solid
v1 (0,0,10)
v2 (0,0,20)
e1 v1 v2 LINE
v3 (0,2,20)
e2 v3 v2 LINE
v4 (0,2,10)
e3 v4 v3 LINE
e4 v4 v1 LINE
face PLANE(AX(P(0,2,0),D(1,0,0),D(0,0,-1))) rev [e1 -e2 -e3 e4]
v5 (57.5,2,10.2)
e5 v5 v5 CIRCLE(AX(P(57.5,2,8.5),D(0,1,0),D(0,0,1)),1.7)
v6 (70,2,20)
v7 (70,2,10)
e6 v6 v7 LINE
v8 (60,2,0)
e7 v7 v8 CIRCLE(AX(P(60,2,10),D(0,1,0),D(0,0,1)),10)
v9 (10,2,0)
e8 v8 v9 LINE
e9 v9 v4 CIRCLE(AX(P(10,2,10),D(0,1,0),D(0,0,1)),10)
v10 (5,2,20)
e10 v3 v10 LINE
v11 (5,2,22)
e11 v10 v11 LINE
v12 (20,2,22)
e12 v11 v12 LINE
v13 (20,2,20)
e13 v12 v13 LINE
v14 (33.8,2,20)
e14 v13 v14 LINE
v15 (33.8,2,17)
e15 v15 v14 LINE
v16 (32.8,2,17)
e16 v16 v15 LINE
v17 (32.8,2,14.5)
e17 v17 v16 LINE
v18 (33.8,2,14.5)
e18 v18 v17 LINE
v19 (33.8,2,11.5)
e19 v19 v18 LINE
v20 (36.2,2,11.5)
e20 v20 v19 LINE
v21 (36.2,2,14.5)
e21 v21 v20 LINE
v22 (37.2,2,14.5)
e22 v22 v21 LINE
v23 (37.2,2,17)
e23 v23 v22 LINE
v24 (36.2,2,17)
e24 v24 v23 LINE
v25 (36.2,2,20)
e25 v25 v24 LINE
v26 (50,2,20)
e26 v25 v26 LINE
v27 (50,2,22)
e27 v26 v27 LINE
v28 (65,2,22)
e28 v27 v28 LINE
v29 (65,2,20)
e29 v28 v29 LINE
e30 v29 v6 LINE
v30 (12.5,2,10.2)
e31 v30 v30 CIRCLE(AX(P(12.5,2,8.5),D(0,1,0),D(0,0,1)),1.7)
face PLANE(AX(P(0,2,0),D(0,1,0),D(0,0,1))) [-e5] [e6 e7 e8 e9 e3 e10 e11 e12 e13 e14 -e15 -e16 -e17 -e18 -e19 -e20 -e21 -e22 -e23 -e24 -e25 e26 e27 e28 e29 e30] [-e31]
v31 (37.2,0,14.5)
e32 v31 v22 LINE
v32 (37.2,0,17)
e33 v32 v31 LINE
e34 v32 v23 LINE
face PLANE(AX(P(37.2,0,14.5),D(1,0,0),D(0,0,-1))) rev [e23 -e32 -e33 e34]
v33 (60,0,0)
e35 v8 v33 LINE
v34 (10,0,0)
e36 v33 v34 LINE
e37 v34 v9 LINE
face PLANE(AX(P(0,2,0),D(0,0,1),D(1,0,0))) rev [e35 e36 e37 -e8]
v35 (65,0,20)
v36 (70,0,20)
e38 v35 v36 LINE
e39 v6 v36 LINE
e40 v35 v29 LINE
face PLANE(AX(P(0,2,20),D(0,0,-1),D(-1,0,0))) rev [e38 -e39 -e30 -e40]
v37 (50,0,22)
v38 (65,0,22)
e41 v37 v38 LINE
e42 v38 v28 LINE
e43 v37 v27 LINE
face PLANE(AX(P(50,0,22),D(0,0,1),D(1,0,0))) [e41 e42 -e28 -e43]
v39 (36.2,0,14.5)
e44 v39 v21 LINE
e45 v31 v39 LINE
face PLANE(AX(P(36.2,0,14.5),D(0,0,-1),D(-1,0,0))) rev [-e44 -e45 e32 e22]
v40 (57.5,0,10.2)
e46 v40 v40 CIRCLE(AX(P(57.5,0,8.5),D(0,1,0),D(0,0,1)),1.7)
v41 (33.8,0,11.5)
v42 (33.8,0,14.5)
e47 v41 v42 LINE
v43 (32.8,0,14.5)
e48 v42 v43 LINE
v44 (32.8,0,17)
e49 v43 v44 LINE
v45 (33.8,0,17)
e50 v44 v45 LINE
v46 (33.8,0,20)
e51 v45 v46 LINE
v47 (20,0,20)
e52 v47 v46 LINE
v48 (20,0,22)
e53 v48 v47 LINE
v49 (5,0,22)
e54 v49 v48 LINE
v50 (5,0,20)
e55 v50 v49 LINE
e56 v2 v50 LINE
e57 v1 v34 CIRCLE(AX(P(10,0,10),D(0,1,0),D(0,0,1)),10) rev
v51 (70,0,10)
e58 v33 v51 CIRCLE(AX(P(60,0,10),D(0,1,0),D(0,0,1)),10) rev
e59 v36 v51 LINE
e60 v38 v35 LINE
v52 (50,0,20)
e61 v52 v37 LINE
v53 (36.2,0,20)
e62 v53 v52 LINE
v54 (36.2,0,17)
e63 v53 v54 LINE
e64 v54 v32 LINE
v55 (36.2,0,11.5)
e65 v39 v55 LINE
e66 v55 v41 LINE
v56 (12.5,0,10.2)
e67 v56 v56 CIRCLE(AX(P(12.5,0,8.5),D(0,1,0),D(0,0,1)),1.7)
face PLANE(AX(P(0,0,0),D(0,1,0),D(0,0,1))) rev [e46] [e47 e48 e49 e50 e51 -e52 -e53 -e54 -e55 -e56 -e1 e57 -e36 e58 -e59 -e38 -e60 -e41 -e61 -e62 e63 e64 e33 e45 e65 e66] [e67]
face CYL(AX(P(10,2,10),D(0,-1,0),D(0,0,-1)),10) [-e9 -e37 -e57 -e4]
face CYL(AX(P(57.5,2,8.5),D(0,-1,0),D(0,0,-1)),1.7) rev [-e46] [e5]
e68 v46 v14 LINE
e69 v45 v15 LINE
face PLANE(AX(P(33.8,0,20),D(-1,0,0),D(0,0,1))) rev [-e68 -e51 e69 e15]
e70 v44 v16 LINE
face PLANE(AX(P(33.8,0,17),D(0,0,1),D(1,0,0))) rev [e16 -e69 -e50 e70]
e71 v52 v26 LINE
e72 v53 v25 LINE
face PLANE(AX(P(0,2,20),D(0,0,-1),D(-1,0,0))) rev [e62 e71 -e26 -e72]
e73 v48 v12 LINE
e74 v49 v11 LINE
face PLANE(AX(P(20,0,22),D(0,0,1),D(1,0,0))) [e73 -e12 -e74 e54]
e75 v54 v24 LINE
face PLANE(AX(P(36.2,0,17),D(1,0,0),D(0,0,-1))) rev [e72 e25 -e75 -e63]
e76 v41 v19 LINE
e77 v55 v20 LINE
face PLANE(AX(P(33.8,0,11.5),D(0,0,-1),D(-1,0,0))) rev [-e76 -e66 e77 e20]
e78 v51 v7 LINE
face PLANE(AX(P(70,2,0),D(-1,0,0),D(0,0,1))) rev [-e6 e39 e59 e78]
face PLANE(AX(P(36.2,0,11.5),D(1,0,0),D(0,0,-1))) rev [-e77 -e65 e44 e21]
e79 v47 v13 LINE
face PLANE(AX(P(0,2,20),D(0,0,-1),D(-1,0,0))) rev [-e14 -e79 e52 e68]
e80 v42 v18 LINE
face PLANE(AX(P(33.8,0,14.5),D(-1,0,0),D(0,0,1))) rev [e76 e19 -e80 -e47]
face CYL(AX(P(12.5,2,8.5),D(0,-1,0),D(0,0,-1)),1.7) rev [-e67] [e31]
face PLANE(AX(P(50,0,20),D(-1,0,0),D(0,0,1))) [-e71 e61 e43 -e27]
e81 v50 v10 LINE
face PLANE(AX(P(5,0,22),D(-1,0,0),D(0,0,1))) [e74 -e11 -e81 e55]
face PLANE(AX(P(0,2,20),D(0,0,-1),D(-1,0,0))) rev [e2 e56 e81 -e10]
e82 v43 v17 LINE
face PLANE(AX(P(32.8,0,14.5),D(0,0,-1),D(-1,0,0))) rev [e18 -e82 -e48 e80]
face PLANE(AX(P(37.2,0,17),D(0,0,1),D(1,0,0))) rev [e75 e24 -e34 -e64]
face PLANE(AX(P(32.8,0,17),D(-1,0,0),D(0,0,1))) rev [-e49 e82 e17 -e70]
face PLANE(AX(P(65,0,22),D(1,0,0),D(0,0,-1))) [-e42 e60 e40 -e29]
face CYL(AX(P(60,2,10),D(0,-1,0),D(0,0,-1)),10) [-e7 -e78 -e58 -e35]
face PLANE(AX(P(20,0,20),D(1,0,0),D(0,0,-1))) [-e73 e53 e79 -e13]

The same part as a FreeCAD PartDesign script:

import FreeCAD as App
import Part
import Sketcher

V = App.Vector


def edges_at(feature, points):
    """Names of the edges that pass closest to the given points."""
    edges = feature.Shape.Edges
    near = lambda p: min(range(len(edges)), key=lambda i: edges[i].distToShape(Part.Vertex(*p))[0])
    return sorted({f"Edge{near(p) + 1}" for p in points})

doc = App.newDocument("Part")
body = doc.addObject("PartDesign::Body", "Body")

sketch1 = body.newObject("Sketcher::SketchObject", "Sketch")
sketch1.AttachmentSupport = (doc.getObject("XZ_Plane"), [""])
sketch1.MapMode = "FlatFace"
sketch1.addGeometry([
    Part.LineSegment(V(0, 0, 0), V(0, 20, 0)),
    Part.LineSegment(V(0, 20, 0), V(70, 20, 0)),
    Part.LineSegment(V(70, 20, 0), V(70, 0, 0)),
    Part.LineSegment(V(70, 0, 0), V(0, 0, 0)),
    Part.Circle(V(12.5, 8.5, 0), V(0, 0, 1), 1.7),
    Part.Circle(V(57.5, 8.5, 0), V(0, 0, 1), 1.7),
], False)
sketch1.addConstraint([
    Sketcher.Constraint("Coincident", 0, 2, 1, 1),
    Sketcher.Constraint("Coincident", 1, 2, 2, 1),
    Sketcher.Constraint("Coincident", 2, 2, 3, 1),
    Sketcher.Constraint("Coincident", 3, 2, 0, 1),
    Sketcher.Constraint("Vertical", 0),
    Sketcher.Constraint("Horizontal", 1),
    Sketcher.Constraint("Vertical", 2),
    Sketcher.Constraint("Horizontal", 3),
    Sketcher.Constraint("Coincident", 3, 2, -1, 1),
    Sketcher.Constraint("Equal", 4, 5),
    Sketcher.Constraint("Horizontal", 4, 3, 5, 3),
    Sketcher.Constraint("Diameter", 4, 3.4),
    Sketcher.Constraint("DistanceX", 1, 1, 1, 2, 70.0),
    Sketcher.Constraint("DistanceY", 0, 1, 0, 2, 20.0),
    Sketcher.Constraint("DistanceX", 4, 3, 5, 3, 45.0),
    Sketcher.Constraint("DistanceX", -1, 1, 4, 3, 12.5),
    Sketcher.Constraint("DistanceY", -1, 1, 4, 3, 8.5),
])
pad1 = body.newObject("PartDesign::Pad", "Pad")
pad1.Profile = sketch1
pad1.Length = 2
pad1.Reversed = True

sketch2 = body.newObject("Sketcher::SketchObject", "Sketch001")
sketch2.AttachmentSupport = (doc.getObject("XZ_Plane"), [""])
sketch2.MapMode = "FlatFace"
sketch2.AttachmentOffset = App.Placement(V(0, 0, -2), App.Rotation())
sketch2.addGeometry([
    Part.LineSegment(V(33.8, 17, 0), V(33.8, 20, 0)),
    Part.LineSegment(V(33.8, 20, 0), V(36.2, 20, 0)),
    Part.LineSegment(V(36.2, 20, 0), V(36.2, 17, 0)),
    Part.LineSegment(V(36.2, 17, 0), V(37.2, 17, 0)),
    Part.LineSegment(V(37.2, 17, 0), V(37.2, 14.5, 0)),
    Part.LineSegment(V(37.2, 14.5, 0), V(36.2, 14.5, 0)),
    Part.LineSegment(V(36.2, 14.5, 0), V(36.2, 11.5, 0)),
    Part.LineSegment(V(36.2, 11.5, 0), V(33.8, 11.5, 0)),
    Part.LineSegment(V(33.8, 11.5, 0), V(33.8, 14.5, 0)),
    Part.LineSegment(V(33.8, 14.5, 0), V(32.8, 14.5, 0)),
    Part.LineSegment(V(32.8, 14.5, 0), V(32.8, 17, 0)),
    Part.LineSegment(V(32.8, 17, 0), V(33.8, 17, 0)),
], False)
sketch2.addConstraint([
    Sketcher.Constraint("Coincident", 0, 2, 1, 1),
    Sketcher.Constraint("Coincident", 1, 2, 2, 1),
    Sketcher.Constraint("Coincident", 2, 2, 3, 1),
    Sketcher.Constraint("Coincident", 3, 2, 4, 1),
    Sketcher.Constraint("Coincident", 4, 2, 5, 1),
    Sketcher.Constraint("Coincident", 5, 2, 6, 1),
    Sketcher.Constraint("Coincident", 6, 2, 7, 1),
    Sketcher.Constraint("Coincident", 7, 2, 8, 1),
    Sketcher.Constraint("Coincident", 8, 2, 9, 1),
    Sketcher.Constraint("Coincident", 9, 2, 10, 1),
    Sketcher.Constraint("Coincident", 10, 2, 11, 1),
    Sketcher.Constraint("Coincident", 11, 2, 0, 1),
    Sketcher.Constraint("Vertical", 0),
    Sketcher.Constraint("Horizontal", 1),
    Sketcher.Constraint("Vertical", 2),
    Sketcher.Constraint("Horizontal", 3),
    Sketcher.Constraint("Vertical", 4),
    Sketcher.Constraint("Horizontal", 5),
    Sketcher.Constraint("Vertical", 6),
    Sketcher.Constraint("Horizontal", 7),
    Sketcher.Constraint("Vertical", 8),
    Sketcher.Constraint("Horizontal", 9),
    Sketcher.Constraint("Vertical", 10),
    Sketcher.Constraint("Horizontal", 11),
    Sketcher.Constraint("Horizontal", 5, 2, 8, 2),
    Sketcher.Constraint("Horizontal", 3, 2, 10, 2),
    Sketcher.Constraint("Vertical", 2, 2, 5, 2),
    Sketcher.Constraint("Vertical", 0, 2, 7, 2),
    Sketcher.Constraint("Equal", 5, 9),
    Sketcher.Constraint("Equal", 2, 6),
    Sketcher.Constraint("DistanceX", 3, 1, 3, 2, 1.0),
    Sketcher.Constraint("DistanceY", 0, 1, 0, 2, 3.0),
    Sketcher.Constraint("DistanceX", 1, 1, 1, 2, 2.4),
    Sketcher.Constraint("DistanceY", 4, 2, 4, 1, 2.5),
    Sketcher.Constraint("DistanceY", -1, 1, 0, 2, 20.0),
    Sketcher.Constraint("DistanceX", -1, 1, 0, 2, 33.8),
])
pocket1 = body.newObject("PartDesign::Pocket", "Pocket")
pocket1.Profile = sketch2
pocket1.Length = 2
pocket1.Reversed = True

sketch3 = body.newObject("Sketcher::SketchObject", "Sketch002")
sketch3.AttachmentSupport = (doc.getObject("XZ_Plane"), [""])
sketch3.MapMode = "FlatFace"
sketch3.AttachmentOffset = App.Placement(V(0, 0, -2), App.Rotation())
sketch3.addGeometry([
    Part.LineSegment(V(5, 20, 0), V(5, 22, 0)),
    Part.LineSegment(V(5, 22, 0), V(20, 22, 0)),
    Part.LineSegment(V(20, 22, 0), V(20, 20, 0)),
    Part.LineSegment(V(20, 20, 0), V(5, 20, 0)),
    Part.LineSegment(V(50, 20, 0), V(50, 22, 0)),
    Part.LineSegment(V(50, 22, 0), V(65, 22, 0)),
    Part.LineSegment(V(65, 22, 0), V(65, 20, 0)),
    Part.LineSegment(V(65, 20, 0), V(50, 20, 0)),
], False)
sketch3.addConstraint([
    Sketcher.Constraint("Coincident", 0, 2, 1, 1),
    Sketcher.Constraint("Coincident", 1, 2, 2, 1),
    Sketcher.Constraint("Coincident", 2, 2, 3, 1),
    Sketcher.Constraint("Coincident", 3, 2, 0, 1),
    Sketcher.Constraint("Coincident", 4, 2, 5, 1),
    Sketcher.Constraint("Coincident", 5, 2, 6, 1),
    Sketcher.Constraint("Coincident", 6, 2, 7, 1),
    Sketcher.Constraint("Coincident", 7, 2, 4, 1),
    Sketcher.Constraint("Vertical", 0),
    Sketcher.Constraint("Horizontal", 1),
    Sketcher.Constraint("Vertical", 2),
    Sketcher.Constraint("Horizontal", 3),
    Sketcher.Constraint("Vertical", 4),
    Sketcher.Constraint("Horizontal", 5),
    Sketcher.Constraint("Vertical", 6),
    Sketcher.Constraint("Horizontal", 7),
    Sketcher.Constraint("Horizontal", 1, 2, 4, 2),
    Sketcher.Constraint("Horizontal", 3, 2, 6, 2),
    Sketcher.Constraint("Equal", 3, 5),
    Sketcher.Constraint("DistanceX", 1, 1, 1, 2, 15.0),
    Sketcher.Constraint("DistanceY", 0, 1, 0, 2, 2.0),
    Sketcher.Constraint("DistanceX", -1, 1, 0, 2, 5.0),
    Sketcher.Constraint("DistanceY", -1, 1, 0, 2, 22.0),
    Sketcher.Constraint("DistanceX", -1, 1, 4, 2, 50.0),
])
pad2 = body.newObject("PartDesign::Pad", "Pad001")
pad2.Profile = sketch3
pad2.Length = 2
doc.recompute()

fillet = body.newObject("PartDesign::Fillet", "Fillet")
fillet.Base = (pad2, edges_at(pad2, [(0, 1, 0), (70, 1, 0)]))
fillet.Radius = 10

doc.recompute()
